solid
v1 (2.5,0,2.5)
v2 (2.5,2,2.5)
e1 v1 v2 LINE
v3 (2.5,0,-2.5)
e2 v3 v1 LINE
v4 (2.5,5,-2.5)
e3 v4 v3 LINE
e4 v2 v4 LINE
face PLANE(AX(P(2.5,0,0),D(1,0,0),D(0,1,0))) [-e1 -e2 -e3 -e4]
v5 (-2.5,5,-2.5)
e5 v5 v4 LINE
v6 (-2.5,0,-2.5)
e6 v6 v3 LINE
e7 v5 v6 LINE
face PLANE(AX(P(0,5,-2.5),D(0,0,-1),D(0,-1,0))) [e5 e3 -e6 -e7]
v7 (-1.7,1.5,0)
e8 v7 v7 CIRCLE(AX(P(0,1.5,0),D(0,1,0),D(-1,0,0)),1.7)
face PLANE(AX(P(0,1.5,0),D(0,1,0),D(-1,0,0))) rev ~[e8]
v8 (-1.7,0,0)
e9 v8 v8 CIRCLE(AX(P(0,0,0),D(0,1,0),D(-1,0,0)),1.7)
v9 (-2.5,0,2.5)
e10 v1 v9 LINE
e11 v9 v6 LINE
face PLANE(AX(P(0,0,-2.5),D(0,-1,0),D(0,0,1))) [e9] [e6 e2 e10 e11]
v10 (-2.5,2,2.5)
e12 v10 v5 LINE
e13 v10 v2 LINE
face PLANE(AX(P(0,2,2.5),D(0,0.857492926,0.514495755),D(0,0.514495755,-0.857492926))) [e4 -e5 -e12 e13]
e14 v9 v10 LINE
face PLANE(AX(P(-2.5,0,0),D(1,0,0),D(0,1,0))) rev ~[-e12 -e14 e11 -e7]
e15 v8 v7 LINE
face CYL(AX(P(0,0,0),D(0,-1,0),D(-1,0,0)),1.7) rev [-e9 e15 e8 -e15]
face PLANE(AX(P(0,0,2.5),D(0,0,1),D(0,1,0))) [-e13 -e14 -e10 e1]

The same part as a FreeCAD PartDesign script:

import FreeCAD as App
import Part
import Sketcher

V = App.Vector
Q = App.Units.Quantity

doc = App.newDocument("Part")
body = doc.addObject("PartDesign::Body", "Body")

sketch1 = body.newObject("Sketcher::SketchObject", "Sketch")
sketch1.AttachmentSupport = (doc.getObject("YZ_Plane"), [""])
sketch1.MapMode = "FlatFace"
sketch1.addGeometry([
    Part.LineSegment(V(0, 2.5, 0), V(0, -2.5, 0)),
    Part.LineSegment(V(0, -2.5, 0), V(5, -2.5, 0)),
    Part.LineSegment(V(5, -2.5, 0), V(2, 2.5, 0)),
    Part.LineSegment(V(2, 2.5, 0), V(0, 2.5, 0)),
], False)
sketch1.addConstraint([
    Sketcher.Constraint("Coincident", 0, 2, 1, 1),
    Sketcher.Constraint("Coincident", 1, 2, 2, 1),
    Sketcher.Constraint("Coincident", 2, 2, 3, 1),
    Sketcher.Constraint("Coincident", 3, 2, 0, 1),
    Sketcher.Constraint("Vertical", 0),
    Sketcher.Constraint("Horizontal", 1),
    Sketcher.Constraint("Horizontal", 3),
    Sketcher.Constraint("Symmetric", 0, 2, 3, 2, -1, 1),
    Sketcher.Constraint("Equal", 1, 0),
    Sketcher.Constraint("DistanceX", 1, 1, 1, 2, Q("5 mm")),
    Sketcher.Constraint("DistanceX", 3, 2, 3, 1, Q("2 mm")),
])
pad1 = body.newObject("PartDesign::Pad", "Pad")
pad1.Profile = sketch1
pad1.Length = 5
pad1.Midplane = True

sketch2 = body.newObject("Sketcher::SketchObject", "Sketch001")
sketch2.AttachmentSupport = (doc.getObject("XZ_Plane"), [""])
sketch2.MapMode = "FlatFace"
sketch2.addGeometry(Part.Circle(V(0, 0, 0), V(0, 0, 1), 1.7), False)
sketch2.addConstraint([
    Sketcher.Constraint("Coincident", 0, 3, -1, 1),
    Sketcher.Constraint("Diameter", 0, Q("3.4 mm")),
])
pocket1 = body.newObject("PartDesign::Pocket", "Pocket")
pocket1.Profile = sketch2
pocket1.Length = 1.5

doc.recompute()
